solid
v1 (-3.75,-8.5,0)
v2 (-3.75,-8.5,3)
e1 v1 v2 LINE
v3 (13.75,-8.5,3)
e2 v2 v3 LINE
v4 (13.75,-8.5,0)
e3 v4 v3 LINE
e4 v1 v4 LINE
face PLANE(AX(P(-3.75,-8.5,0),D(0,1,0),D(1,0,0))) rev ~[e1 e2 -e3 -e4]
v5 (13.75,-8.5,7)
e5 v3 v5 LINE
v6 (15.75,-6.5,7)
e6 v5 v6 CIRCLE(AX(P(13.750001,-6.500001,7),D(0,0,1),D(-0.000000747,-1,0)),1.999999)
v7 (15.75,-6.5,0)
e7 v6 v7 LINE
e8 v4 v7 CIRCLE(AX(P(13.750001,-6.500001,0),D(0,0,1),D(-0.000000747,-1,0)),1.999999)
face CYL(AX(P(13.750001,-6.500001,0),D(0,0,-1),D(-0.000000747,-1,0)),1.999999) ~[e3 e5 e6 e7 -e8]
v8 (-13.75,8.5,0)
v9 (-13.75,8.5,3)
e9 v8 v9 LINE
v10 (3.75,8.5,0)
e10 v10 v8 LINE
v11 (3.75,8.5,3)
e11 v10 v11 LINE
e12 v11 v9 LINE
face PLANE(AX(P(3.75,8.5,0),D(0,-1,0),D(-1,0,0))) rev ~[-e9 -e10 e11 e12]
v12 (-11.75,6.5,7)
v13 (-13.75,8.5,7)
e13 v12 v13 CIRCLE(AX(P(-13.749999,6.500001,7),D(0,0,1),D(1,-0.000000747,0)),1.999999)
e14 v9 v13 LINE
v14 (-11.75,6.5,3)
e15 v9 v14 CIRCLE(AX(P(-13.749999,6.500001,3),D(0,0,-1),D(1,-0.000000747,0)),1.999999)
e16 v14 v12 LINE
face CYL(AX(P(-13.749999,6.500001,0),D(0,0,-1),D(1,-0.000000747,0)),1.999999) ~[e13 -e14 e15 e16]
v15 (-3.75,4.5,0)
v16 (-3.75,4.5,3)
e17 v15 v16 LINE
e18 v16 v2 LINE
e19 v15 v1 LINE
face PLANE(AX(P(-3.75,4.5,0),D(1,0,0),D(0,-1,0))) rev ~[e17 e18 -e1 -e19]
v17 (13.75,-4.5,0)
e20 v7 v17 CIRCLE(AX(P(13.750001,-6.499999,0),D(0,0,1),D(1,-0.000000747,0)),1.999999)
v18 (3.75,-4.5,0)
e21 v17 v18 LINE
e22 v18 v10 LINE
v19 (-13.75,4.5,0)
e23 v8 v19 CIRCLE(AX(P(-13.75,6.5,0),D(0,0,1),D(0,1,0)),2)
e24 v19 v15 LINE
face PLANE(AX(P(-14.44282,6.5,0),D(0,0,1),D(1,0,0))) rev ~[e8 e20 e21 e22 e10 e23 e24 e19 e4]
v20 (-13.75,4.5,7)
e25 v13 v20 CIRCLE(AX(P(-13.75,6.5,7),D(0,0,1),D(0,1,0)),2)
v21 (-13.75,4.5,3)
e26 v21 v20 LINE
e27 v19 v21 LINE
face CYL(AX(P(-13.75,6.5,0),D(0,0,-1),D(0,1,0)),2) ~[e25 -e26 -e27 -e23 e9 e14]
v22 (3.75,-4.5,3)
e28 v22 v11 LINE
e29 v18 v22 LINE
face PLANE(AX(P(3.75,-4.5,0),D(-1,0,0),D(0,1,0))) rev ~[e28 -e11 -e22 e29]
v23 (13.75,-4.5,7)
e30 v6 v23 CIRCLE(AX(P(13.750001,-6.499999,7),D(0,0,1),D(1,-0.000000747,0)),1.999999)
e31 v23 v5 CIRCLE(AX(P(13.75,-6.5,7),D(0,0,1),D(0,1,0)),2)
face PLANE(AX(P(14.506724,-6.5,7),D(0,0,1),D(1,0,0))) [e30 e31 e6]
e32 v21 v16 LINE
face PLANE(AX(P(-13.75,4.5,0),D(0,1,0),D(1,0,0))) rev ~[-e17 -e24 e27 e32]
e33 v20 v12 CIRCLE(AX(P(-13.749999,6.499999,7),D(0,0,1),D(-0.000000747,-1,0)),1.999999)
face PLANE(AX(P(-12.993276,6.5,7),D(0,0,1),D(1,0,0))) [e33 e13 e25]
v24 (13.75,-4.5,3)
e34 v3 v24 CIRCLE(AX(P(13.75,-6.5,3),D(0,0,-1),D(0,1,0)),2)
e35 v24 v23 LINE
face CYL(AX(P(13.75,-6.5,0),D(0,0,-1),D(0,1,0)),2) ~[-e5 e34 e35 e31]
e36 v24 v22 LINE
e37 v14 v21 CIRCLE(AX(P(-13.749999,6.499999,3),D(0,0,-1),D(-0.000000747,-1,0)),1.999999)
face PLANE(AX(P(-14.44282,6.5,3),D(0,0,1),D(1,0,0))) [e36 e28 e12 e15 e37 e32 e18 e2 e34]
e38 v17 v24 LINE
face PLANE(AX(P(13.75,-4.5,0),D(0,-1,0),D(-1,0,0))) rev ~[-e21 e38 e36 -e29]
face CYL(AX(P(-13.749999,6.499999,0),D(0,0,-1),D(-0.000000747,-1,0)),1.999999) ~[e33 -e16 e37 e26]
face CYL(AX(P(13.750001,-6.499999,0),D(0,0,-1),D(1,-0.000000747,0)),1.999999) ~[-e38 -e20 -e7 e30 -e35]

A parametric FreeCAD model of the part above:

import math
import FreeCAD as App
import Part
import Sketcher
Q = App.Units.Quantity

doc = App.newDocument("Part")
body = doc.addObject("PartDesign::Body", "Body")

# Sketch on XY plane
sketch1 = body.newObject("Sketcher::SketchObject", "Sketch")
sketch1.AttachmentSupport = (doc.getObject("XY_Plane"), [""])
sketch1.MapMode = "FlatFace"
sketch1.addGeometry(Part.ArcOfCircle(Part.Circle(App.Vector(-13.8, 6.5, 0), App.Vector(0, 0, 1), 2), math.radians(90), math.radians(270)), False)
sketch1.addGeometry(Part.LineSegment(App.Vector(-13.8, 4.5, 0), App.Vector(-3.8, 4.5, 0)), False)
sketch1.addGeometry(Part.LineSegment(App.Vector(-3.8, 4.5, 0), App.Vector(-3.8, -8.5, 0)), False)
sketch1.addGeometry(Part.LineSegment(App.Vector(-3.8, -8.5, 0), App.Vector(13.8, -8.5, 0)), False)
sketch1.addGeometry(Part.ArcOfCircle(Part.Circle(App.Vector(13.8, -6.5, 0), App.Vector(0, 0, 1), 2), math.radians(-90), math.radians(0)), False)
sketch1.addGeometry(Part.ArcOfCircle(Part.Circle(App.Vector(13.8, -6.5, 0), App.Vector(0, 0, 1), 2), math.radians(0), math.radians(90)), False)
sketch1.addGeometry(Part.LineSegment(App.Vector(13.8, -4.5, 0), App.Vector(3.8, -4.5, 0)), False)
sketch1.addGeometry(Part.LineSegment(App.Vector(3.8, -4.5, 0), App.Vector(3.8, 8.5, 0)), False)
sketch1.addGeometry(Part.LineSegment(App.Vector(3.8, 8.5, 0), App.Vector(-13.8, 8.5, 0)), False)
sketch1.addConstraint(Sketcher.Constraint("Tangent", 0, 2, 1, 1))
sketch1.addConstraint(Sketcher.Constraint("Coincident", 1, 2, 2, 1))
sketch1.addConstraint(Sketcher.Constraint("Coincident", 2, 2, 3, 1))
sketch1.addConstraint(Sketcher.Constraint("Tangent", 3, 2, 4, 1))
sketch1.addConstraint(Sketcher.Constraint("Tangent", 4, 2, 5, 1))
sketch1.addConstraint(Sketcher.Constraint("Tangent", 5, 2, 6, 1))
sketch1.addConstraint(Sketcher.Constraint("Coincident", 6, 2, 7, 1))
sketch1.addConstraint(Sketcher.Constraint("Coincident", 7, 2, 8, 1))
sketch1.addConstraint(Sketcher.Constraint("Tangent", 8, 2, 0, 1))
sketch1.addConstraint(Sketcher.Constraint("Horizontal", 1))
sketch1.addConstraint(Sketcher.Constraint("Vertical", 2))
sketch1.addConstraint(Sketcher.Constraint("Horizontal", 3))
sketch1.addConstraint(Sketcher.Constraint("Horizontal", 6))
sketch1.addConstraint(Sketcher.Constraint("Vertical", 7))
sketch1.addConstraint(Sketcher.Constraint("Horizontal", 8))
sketch1.addConstraint(Sketcher.Constraint("Equal", 0, 4))
sketch1.addConstraint(Sketcher.Constraint("Equal", 4, 5))
sketch1.addConstraint(Sketcher.Constraint("Symmetric", 0, 3, 4, 3, -1, 1))
sketch1.addConstraint(Sketcher.Constraint("Horizontal", 5, 3, 4, 2))
sketch1.addConstraint(Sketcher.Constraint("Equal", 1, 6))
sketch1.addConstraint(Sketcher.Constraint("Radius", 0, Q("2 mm")))
sketch1.addConstraint(Sketcher.Constraint("DistanceX", 1, 1, 1, 2, Q("10 mm")))
sketch1.addConstraint(Sketcher.Constraint("DistanceY", 2, 2, 2, 1, Q("13 mm")))
sketch1.addConstraint(Sketcher.Constraint("DistanceX", 3, 1, 3, 2, Q("17.5 mm")))
pad1 = body.newObject("PartDesign::Pad", "Pad")
pad1.Profile = sketch1
pad1.Length = 3

# Sketch on XY plane
sketch2 = body.newObject("Sketcher::SketchObject", "Sketch001")
sketch2.AttachmentSupport = (doc.getObject("XY_Plane"), [""])
sketch2.MapMode = "FlatFace"
sketch2.addGeometry(Part.ArcOfCircle(Part.Circle(App.Vector(13.8, -6.5, 0), App.Vector(0, 0, 1), 2), math.radians(0), math.radians(90)), False)
sketch2.addGeometry(Part.ArcOfCircle(Part.Circle(App.Vector(13.8, -6.5, 0), App.Vector(0, 0, 1), 2), math.radians(90), math.radians(270)), False)
sketch2.addGeometry(Part.ArcOfCircle(Part.Circle(App.Vector(13.8, -6.5, 0), App.Vector(0, 0, 1), 2), math.radians(-90), math.radians(0)), False)
sketch2.addGeometry(Part.ArcOfCircle(Part.Circle(App.Vector(-13.7, 6.5, 0), App.Vector(0, 0, 1), 2), math.radians(0), math.radians(90)), False)
sketch2.addGeometry(Part.ArcOfCircle(Part.Circle(App.Vector(-13.8, 6.5, 0), App.Vector(0, 0, 1), 2), math.radians(90), math.radians(270)), False)
sketch2.addGeometry(Part.ArcOfCircle(Part.Circle(App.Vector(-13.7, 6.5, 0), App.Vector(0, 0, 1), 2), math.radians(-90), math.radians(0)), False)
sketch2.addConstraint(Sketcher.Constraint("Tangent", 0, 2, 1, 1))
sketch2.addConstraint(Sketcher.Constraint("Tangent", 1, 2, 2, 1))
sketch2.addConstraint(Sketcher.Constraint("Tangent", 2, 2, 0, 1))
sketch2.addConstraint(Sketcher.Constraint("Tangent", 3, 2, 4, 1))
sketch2.addConstraint(Sketcher.Constraint("Tangent", 4, 2, 5, 1))
sketch2.addConstraint(Sketcher.Constraint("Tangent", 5, 2, 3, 1))
sketch2.addConstraint(Sketcher.Constraint("Equal", 2, 3))
sketch2.addConstraint(Sketcher.Constraint("Symmetric", 0, 3, 3, 3, -1, 1))
sketch2.addConstraint(Sketcher.Constraint("Horizontal", 1, 3, 2, 2))
sketch2.addConstraint(Sketcher.Constraint("Horizontal", 4, 3, 5, 2))
sketch2.addConstraint(Sketcher.Constraint("Vertical", 2, 3, 0, 2))
sketch2.addConstraint(Sketcher.Constraint("Vertical", 0, 2, 1, 2))
sketch2.addConstraint(Sketcher.Constraint("Vertical", 5, 3, 3, 2))
sketch2.addConstraint(Sketcher.Constraint("Vertical", 3, 2, 4, 2))
sketch2.addConstraint(Sketcher.Constraint("Radius", 0, Q("1.999999 mm")))
sketch2.addConstraint(Sketcher.Constraint("DistanceY", 1, 3, 3, 3, Q("13.000001 mm")))
sketch2.addConstraint(Sketcher.Constraint("DistanceX", 3, 3, 1, 3, Q("27.499999 mm")))
pad2 = body.newObject("PartDesign::Pad", "Pad001")
pad2.Profile = sketch2
pad2.Length = 7

doc.recompute()
